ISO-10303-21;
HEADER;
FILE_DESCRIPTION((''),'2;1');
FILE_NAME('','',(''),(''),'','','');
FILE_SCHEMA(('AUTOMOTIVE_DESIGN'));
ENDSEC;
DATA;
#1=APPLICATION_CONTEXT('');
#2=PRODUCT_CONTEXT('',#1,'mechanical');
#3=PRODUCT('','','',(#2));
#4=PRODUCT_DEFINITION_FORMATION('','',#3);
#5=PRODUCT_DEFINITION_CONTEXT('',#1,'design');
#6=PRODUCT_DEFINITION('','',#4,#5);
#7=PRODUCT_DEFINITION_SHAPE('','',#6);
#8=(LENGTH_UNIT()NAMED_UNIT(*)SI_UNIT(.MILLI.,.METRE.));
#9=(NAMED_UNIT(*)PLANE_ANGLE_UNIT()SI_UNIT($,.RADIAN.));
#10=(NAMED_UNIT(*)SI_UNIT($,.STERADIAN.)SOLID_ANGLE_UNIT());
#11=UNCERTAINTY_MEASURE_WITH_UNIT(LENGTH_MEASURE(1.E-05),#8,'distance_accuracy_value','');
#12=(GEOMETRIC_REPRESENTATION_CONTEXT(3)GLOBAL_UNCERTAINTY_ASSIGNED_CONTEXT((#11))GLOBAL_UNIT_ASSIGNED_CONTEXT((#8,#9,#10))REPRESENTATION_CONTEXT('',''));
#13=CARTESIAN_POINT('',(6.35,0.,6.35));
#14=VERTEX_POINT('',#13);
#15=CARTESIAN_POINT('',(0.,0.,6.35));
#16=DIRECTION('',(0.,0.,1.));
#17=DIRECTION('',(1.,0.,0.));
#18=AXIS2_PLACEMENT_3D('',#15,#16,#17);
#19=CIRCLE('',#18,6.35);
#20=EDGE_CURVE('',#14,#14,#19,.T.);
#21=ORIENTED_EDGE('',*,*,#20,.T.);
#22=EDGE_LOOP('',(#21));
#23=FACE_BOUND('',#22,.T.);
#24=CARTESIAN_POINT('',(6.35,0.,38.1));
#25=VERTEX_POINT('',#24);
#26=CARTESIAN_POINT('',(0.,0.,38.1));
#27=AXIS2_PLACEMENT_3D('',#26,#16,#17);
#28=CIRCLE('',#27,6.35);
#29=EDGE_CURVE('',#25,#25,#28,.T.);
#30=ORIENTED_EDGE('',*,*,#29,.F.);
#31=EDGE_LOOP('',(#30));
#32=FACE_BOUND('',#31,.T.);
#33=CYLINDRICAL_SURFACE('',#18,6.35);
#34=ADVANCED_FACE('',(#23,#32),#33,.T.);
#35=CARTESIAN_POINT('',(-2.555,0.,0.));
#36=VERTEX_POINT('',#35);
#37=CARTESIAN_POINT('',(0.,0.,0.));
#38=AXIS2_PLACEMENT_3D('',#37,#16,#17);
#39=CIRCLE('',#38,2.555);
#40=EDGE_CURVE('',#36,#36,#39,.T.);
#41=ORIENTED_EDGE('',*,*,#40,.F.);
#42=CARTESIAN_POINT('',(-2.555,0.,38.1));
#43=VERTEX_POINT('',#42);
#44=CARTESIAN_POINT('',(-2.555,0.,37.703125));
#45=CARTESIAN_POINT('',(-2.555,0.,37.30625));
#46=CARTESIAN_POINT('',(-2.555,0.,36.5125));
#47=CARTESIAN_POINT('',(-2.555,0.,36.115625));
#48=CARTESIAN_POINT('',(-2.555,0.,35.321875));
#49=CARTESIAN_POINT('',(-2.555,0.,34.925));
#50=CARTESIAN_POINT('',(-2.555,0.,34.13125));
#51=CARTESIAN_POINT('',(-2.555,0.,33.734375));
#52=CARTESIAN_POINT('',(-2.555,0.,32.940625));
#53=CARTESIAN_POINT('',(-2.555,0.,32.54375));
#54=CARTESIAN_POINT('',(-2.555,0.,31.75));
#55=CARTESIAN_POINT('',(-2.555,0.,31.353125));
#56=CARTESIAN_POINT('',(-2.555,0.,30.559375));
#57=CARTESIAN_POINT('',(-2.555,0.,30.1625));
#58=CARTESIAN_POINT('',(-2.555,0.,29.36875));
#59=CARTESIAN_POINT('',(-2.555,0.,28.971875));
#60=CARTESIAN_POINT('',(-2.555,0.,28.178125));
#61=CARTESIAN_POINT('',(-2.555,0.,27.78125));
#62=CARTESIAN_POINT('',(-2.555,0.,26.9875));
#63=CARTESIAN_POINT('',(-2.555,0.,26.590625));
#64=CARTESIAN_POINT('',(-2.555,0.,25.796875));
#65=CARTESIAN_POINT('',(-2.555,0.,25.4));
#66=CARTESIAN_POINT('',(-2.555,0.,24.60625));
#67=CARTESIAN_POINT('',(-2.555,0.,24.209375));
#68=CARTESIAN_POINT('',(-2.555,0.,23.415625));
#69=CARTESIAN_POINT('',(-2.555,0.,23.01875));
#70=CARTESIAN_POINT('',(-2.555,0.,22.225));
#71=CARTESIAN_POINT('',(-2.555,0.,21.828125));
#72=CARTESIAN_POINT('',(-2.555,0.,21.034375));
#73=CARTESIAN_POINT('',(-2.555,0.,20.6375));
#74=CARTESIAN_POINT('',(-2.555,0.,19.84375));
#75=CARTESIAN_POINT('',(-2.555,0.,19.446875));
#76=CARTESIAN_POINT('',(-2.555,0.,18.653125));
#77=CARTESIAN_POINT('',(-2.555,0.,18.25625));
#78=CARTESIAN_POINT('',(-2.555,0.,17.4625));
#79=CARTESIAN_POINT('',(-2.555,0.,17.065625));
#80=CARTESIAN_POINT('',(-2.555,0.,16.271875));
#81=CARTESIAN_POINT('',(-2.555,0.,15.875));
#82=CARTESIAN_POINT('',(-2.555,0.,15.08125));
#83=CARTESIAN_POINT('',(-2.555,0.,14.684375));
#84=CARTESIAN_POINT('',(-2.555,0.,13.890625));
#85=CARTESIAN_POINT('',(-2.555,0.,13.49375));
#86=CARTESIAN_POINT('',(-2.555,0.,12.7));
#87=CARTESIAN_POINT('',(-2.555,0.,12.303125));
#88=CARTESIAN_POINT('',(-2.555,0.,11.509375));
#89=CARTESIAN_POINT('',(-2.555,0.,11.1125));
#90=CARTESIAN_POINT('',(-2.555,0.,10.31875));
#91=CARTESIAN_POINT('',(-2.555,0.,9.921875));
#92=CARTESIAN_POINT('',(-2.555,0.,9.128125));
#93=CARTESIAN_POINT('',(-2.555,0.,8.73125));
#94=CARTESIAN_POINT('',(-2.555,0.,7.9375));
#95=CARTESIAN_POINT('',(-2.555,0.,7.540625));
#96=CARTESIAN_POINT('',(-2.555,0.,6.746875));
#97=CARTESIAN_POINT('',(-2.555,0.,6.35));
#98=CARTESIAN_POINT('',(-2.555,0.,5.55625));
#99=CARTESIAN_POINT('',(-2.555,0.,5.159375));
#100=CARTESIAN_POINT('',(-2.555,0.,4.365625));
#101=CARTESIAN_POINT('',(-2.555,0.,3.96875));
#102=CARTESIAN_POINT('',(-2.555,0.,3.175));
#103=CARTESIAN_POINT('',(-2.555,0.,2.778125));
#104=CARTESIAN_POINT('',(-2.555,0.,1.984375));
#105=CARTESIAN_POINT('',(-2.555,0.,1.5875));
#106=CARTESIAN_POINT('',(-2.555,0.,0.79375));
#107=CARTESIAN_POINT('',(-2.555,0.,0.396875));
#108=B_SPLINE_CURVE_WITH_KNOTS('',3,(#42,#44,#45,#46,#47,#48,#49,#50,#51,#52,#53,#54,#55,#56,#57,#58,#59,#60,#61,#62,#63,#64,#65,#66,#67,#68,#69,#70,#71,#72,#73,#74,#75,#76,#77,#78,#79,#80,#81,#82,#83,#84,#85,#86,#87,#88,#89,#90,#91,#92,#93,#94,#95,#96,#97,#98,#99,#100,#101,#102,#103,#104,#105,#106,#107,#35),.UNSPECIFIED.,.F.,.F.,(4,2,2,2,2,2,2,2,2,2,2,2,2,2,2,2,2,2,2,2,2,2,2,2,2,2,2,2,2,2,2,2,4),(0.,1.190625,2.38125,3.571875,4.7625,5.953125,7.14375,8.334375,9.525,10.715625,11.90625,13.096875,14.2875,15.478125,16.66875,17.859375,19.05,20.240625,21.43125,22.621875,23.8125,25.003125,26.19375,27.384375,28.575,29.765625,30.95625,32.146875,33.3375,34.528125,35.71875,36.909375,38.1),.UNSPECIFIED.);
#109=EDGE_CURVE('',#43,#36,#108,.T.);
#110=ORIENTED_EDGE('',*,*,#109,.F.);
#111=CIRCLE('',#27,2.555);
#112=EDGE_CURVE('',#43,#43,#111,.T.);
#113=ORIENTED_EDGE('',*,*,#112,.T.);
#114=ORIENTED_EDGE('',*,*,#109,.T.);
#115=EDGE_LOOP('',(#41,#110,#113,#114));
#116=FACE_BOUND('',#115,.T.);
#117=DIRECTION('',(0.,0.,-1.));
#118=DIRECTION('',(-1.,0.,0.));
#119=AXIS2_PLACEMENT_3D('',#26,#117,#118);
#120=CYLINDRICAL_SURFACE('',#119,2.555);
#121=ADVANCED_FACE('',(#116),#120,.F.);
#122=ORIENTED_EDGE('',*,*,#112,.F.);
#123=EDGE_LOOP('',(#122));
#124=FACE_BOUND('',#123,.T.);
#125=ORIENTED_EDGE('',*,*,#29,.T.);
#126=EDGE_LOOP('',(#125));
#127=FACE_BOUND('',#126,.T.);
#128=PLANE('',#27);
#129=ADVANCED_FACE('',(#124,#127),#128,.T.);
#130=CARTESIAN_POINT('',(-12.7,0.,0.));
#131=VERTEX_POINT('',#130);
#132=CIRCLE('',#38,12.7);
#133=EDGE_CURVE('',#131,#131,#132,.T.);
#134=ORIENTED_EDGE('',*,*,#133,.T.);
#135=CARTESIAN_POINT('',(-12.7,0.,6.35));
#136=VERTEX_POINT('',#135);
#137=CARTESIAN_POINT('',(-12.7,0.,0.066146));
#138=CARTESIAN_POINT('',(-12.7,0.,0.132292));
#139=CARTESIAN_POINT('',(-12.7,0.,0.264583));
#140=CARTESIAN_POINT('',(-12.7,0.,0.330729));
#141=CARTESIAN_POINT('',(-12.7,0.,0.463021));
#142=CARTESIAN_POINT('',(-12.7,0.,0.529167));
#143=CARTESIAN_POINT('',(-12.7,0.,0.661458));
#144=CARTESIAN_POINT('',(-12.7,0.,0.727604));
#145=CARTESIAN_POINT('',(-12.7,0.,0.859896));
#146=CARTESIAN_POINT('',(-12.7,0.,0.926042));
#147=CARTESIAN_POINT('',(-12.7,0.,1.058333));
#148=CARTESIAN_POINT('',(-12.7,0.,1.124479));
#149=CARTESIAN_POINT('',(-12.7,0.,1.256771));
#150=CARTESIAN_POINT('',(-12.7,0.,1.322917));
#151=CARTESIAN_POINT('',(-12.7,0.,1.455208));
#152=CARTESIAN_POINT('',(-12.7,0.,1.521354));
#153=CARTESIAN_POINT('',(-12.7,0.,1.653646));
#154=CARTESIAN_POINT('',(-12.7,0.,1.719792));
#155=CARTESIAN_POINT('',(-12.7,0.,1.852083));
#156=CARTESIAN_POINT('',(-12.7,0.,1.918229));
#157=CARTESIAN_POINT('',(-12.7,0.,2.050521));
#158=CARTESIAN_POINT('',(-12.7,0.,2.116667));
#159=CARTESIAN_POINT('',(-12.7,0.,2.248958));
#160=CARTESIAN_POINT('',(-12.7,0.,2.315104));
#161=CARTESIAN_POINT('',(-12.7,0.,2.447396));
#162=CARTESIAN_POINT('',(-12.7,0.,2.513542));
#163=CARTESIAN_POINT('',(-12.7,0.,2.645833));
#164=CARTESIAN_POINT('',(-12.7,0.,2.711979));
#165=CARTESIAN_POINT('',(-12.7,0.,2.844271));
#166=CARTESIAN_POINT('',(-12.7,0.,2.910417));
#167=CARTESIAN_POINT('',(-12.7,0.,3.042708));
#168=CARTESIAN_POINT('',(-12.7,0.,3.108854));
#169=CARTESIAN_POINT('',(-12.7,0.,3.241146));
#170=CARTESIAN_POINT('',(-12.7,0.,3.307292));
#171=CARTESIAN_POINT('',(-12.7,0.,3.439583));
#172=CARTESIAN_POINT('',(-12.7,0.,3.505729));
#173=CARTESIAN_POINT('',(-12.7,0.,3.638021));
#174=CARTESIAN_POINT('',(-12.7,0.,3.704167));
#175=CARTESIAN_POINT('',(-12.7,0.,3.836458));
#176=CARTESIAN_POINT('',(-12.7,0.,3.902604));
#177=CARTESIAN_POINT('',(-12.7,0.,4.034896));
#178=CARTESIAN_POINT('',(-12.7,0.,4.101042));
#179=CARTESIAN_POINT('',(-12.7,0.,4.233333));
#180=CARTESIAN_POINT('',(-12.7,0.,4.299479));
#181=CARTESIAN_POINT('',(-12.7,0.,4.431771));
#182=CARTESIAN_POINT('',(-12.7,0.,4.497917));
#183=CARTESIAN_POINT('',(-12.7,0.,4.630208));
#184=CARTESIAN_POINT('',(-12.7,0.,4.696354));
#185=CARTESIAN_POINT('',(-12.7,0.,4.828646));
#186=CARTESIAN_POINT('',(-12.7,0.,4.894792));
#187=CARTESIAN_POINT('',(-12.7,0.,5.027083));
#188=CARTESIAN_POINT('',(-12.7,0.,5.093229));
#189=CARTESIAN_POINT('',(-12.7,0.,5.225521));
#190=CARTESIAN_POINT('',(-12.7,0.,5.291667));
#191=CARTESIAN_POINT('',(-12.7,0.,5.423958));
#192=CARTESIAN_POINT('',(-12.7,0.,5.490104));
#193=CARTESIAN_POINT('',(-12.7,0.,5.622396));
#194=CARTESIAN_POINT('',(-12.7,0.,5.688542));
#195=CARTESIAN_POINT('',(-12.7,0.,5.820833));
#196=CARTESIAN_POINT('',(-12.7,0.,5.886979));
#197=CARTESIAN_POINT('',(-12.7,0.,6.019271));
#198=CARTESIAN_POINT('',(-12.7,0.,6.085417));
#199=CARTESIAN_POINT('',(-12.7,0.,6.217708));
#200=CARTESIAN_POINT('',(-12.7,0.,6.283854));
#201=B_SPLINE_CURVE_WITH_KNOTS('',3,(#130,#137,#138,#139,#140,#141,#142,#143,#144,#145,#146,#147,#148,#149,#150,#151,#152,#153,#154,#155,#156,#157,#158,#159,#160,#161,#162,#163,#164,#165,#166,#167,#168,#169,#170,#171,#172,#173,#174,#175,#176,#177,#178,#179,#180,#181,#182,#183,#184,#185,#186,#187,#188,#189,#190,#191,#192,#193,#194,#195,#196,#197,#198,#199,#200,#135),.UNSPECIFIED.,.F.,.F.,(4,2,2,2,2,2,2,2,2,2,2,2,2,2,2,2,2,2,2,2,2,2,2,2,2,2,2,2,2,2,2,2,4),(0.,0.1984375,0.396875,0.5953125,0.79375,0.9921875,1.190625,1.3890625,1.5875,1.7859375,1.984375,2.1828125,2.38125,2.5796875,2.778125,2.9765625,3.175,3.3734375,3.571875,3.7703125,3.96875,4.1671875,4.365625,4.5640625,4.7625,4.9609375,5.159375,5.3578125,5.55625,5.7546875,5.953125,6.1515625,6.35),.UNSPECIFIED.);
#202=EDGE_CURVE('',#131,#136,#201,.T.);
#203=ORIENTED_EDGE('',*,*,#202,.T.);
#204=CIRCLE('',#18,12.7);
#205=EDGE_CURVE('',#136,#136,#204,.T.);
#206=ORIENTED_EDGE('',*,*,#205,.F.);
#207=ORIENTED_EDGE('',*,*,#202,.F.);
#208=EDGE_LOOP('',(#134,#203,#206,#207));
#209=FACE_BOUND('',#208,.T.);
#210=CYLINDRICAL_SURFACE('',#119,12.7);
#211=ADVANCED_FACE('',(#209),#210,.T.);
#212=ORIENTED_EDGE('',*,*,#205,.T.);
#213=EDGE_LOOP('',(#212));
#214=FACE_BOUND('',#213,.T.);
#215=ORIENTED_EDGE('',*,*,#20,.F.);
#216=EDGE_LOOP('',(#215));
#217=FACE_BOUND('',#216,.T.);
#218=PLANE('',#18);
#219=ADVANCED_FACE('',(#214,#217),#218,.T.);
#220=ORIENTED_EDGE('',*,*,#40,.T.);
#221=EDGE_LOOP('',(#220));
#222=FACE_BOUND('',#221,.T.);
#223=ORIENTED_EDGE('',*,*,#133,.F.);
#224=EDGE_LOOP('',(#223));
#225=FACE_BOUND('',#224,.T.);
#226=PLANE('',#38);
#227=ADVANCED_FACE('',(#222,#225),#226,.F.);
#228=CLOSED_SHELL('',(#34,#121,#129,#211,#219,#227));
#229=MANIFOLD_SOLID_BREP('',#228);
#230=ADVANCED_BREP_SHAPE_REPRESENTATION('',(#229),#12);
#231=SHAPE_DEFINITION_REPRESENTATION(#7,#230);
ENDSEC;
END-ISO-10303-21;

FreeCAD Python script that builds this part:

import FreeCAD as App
import Part
import Sketcher
Q = App.Units.Quantity

doc = App.newDocument("Part")
body = doc.addObject("PartDesign::Body", "Body")

sketch1 = doc.addObject("Sketcher::SketchObject", "Sketch")
body.addObject(sketch1)
sketch1.AttachmentSupport = (doc.XY_Plane, [""])
sketch1.MapMode = "FlatFace"
sketch1.addGeometry(Part.Circle(App.Vector(0, 0, 0), App.Vector(0, 0, 1), 12.7), False)
sketch1.addGeometry(Part.Circle(App.Vector(0, 0, 0), App.Vector(0, 0, 1), 2.6), False)
sketch1.addConstraint(Sketcher.Constraint("Coincident", 0, 3, -1, 1))
sketch1.addConstraint(Sketcher.Constraint("Coincident", 1, 3, -1, 1))
sketch1.addConstraint(Sketcher.Constraint("Diameter", 0, Q("1 in")))
sketch1.addConstraint(Sketcher.Constraint("Diameter", 1, Q("5.11 mm")))
pad1 = doc.addObject("PartDesign::Pad", "Pad")
body.addObject(pad1)
pad1.Profile = sketch1
pad1.Length = Q("1.5 in")

sketch2 = doc.addObject("Sketcher::SketchObject", "Sketch001")
body.addObject(sketch2)
sketch2.AttachmentSupport = (doc.XY_Plane, [""])
sketch2.MapMode = "FlatFace"
sketch2.AttachmentOffset = App.Placement(App.Vector(0, 0, 0.25 * 25.4), App.Rotation())
sketch2.addGeometry(Part.Circle(App.Vector(0, 0, 0), App.Vector(0, 0, 1), 13), False)
sketch2.addGeometry(Part.Circle(App.Vector(0, 0, 0), App.Vector(0, 0, 1), 6), False)
sketch2.addConstraint(Sketcher.Constraint("Coincident", 0, 3, -1, 1))
sketch2.addConstraint(Sketcher.Constraint("Coincident", 1, 3, -1, 1))
sketch2.addConstraint(Sketcher.Constraint("Diameter", 0, Q("1 in")))
sketch2.addConstraint(Sketcher.Constraint("Diameter", 1, Q("0.5 in")))
pocket1 = doc.addObject("PartDesign::Pocket", "Pocket")
body.addObject(pocket1)
pocket1.Profile = sketch2
pocket1.Length = Q("1.25 in")
pocket1.Reversed = True

doc.recompute()
